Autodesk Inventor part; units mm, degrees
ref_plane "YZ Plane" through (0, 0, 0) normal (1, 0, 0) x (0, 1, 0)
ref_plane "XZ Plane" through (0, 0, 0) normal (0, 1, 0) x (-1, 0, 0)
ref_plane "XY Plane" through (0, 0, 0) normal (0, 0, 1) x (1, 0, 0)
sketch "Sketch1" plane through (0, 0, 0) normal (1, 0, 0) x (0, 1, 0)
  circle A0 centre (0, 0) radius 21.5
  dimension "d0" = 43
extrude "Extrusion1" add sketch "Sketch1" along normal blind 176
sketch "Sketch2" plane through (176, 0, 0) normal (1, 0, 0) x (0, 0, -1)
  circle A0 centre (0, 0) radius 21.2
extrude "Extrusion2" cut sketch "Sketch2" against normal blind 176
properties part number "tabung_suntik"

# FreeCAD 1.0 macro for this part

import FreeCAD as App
import Part
import Sketcher

V = App.Vector
Q = App.Units.Quantity

doc = App.newDocument("Part")
body = doc.addObject("PartDesign::Body", "Body")

# Sketch on YZ plane
sketch1 = body.newObject("Sketcher::SketchObject", "Sketch")
sketch1.AttachmentSupport = (doc.getObject("YZ_Plane"), [""])
sketch1.MapMode = "FlatFace"
sketch1.addGeometry(Part.Circle(V(0, 0, 0), V(0, 0, 1), 22), False)
sketch1.addConstraint(Sketcher.Constraint("Coincident", 0, 3, -1, 1))
sketch1.addConstraint(Sketcher.Constraint("Diameter", 0, Q("43 mm")))
pad1 = body.newObject("PartDesign::Pad", "Pad")
pad1.Profile = sketch1
pad1.Length = 176

# Sketch on YZ plane
sketch2 = body.newObject("Sketcher::SketchObject", "Sketch001")
sketch2.AttachmentSupport = (doc.getObject("YZ_Plane"), [""])
sketch2.MapMode = "FlatFace"
sketch2.AttachmentOffset = App.Placement(V(0, 0, 176), App.Rotation())
sketch2.addGeometry(Part.Circle(V(0, 0, 0), V(0, 0, 1), 21), False)
sketch2.addConstraint(Sketcher.Constraint("Coincident", 0, 3, -1, 1))
sketch2.addConstraint(Sketcher.Constraint("Diameter", 0, Q("42.4 mm")))
pocket1 = body.newObject("PartDesign::Pocket", "Pocket")
pocket1.Profile = sketch2
pocket1.Length = 176

doc.recompute()
